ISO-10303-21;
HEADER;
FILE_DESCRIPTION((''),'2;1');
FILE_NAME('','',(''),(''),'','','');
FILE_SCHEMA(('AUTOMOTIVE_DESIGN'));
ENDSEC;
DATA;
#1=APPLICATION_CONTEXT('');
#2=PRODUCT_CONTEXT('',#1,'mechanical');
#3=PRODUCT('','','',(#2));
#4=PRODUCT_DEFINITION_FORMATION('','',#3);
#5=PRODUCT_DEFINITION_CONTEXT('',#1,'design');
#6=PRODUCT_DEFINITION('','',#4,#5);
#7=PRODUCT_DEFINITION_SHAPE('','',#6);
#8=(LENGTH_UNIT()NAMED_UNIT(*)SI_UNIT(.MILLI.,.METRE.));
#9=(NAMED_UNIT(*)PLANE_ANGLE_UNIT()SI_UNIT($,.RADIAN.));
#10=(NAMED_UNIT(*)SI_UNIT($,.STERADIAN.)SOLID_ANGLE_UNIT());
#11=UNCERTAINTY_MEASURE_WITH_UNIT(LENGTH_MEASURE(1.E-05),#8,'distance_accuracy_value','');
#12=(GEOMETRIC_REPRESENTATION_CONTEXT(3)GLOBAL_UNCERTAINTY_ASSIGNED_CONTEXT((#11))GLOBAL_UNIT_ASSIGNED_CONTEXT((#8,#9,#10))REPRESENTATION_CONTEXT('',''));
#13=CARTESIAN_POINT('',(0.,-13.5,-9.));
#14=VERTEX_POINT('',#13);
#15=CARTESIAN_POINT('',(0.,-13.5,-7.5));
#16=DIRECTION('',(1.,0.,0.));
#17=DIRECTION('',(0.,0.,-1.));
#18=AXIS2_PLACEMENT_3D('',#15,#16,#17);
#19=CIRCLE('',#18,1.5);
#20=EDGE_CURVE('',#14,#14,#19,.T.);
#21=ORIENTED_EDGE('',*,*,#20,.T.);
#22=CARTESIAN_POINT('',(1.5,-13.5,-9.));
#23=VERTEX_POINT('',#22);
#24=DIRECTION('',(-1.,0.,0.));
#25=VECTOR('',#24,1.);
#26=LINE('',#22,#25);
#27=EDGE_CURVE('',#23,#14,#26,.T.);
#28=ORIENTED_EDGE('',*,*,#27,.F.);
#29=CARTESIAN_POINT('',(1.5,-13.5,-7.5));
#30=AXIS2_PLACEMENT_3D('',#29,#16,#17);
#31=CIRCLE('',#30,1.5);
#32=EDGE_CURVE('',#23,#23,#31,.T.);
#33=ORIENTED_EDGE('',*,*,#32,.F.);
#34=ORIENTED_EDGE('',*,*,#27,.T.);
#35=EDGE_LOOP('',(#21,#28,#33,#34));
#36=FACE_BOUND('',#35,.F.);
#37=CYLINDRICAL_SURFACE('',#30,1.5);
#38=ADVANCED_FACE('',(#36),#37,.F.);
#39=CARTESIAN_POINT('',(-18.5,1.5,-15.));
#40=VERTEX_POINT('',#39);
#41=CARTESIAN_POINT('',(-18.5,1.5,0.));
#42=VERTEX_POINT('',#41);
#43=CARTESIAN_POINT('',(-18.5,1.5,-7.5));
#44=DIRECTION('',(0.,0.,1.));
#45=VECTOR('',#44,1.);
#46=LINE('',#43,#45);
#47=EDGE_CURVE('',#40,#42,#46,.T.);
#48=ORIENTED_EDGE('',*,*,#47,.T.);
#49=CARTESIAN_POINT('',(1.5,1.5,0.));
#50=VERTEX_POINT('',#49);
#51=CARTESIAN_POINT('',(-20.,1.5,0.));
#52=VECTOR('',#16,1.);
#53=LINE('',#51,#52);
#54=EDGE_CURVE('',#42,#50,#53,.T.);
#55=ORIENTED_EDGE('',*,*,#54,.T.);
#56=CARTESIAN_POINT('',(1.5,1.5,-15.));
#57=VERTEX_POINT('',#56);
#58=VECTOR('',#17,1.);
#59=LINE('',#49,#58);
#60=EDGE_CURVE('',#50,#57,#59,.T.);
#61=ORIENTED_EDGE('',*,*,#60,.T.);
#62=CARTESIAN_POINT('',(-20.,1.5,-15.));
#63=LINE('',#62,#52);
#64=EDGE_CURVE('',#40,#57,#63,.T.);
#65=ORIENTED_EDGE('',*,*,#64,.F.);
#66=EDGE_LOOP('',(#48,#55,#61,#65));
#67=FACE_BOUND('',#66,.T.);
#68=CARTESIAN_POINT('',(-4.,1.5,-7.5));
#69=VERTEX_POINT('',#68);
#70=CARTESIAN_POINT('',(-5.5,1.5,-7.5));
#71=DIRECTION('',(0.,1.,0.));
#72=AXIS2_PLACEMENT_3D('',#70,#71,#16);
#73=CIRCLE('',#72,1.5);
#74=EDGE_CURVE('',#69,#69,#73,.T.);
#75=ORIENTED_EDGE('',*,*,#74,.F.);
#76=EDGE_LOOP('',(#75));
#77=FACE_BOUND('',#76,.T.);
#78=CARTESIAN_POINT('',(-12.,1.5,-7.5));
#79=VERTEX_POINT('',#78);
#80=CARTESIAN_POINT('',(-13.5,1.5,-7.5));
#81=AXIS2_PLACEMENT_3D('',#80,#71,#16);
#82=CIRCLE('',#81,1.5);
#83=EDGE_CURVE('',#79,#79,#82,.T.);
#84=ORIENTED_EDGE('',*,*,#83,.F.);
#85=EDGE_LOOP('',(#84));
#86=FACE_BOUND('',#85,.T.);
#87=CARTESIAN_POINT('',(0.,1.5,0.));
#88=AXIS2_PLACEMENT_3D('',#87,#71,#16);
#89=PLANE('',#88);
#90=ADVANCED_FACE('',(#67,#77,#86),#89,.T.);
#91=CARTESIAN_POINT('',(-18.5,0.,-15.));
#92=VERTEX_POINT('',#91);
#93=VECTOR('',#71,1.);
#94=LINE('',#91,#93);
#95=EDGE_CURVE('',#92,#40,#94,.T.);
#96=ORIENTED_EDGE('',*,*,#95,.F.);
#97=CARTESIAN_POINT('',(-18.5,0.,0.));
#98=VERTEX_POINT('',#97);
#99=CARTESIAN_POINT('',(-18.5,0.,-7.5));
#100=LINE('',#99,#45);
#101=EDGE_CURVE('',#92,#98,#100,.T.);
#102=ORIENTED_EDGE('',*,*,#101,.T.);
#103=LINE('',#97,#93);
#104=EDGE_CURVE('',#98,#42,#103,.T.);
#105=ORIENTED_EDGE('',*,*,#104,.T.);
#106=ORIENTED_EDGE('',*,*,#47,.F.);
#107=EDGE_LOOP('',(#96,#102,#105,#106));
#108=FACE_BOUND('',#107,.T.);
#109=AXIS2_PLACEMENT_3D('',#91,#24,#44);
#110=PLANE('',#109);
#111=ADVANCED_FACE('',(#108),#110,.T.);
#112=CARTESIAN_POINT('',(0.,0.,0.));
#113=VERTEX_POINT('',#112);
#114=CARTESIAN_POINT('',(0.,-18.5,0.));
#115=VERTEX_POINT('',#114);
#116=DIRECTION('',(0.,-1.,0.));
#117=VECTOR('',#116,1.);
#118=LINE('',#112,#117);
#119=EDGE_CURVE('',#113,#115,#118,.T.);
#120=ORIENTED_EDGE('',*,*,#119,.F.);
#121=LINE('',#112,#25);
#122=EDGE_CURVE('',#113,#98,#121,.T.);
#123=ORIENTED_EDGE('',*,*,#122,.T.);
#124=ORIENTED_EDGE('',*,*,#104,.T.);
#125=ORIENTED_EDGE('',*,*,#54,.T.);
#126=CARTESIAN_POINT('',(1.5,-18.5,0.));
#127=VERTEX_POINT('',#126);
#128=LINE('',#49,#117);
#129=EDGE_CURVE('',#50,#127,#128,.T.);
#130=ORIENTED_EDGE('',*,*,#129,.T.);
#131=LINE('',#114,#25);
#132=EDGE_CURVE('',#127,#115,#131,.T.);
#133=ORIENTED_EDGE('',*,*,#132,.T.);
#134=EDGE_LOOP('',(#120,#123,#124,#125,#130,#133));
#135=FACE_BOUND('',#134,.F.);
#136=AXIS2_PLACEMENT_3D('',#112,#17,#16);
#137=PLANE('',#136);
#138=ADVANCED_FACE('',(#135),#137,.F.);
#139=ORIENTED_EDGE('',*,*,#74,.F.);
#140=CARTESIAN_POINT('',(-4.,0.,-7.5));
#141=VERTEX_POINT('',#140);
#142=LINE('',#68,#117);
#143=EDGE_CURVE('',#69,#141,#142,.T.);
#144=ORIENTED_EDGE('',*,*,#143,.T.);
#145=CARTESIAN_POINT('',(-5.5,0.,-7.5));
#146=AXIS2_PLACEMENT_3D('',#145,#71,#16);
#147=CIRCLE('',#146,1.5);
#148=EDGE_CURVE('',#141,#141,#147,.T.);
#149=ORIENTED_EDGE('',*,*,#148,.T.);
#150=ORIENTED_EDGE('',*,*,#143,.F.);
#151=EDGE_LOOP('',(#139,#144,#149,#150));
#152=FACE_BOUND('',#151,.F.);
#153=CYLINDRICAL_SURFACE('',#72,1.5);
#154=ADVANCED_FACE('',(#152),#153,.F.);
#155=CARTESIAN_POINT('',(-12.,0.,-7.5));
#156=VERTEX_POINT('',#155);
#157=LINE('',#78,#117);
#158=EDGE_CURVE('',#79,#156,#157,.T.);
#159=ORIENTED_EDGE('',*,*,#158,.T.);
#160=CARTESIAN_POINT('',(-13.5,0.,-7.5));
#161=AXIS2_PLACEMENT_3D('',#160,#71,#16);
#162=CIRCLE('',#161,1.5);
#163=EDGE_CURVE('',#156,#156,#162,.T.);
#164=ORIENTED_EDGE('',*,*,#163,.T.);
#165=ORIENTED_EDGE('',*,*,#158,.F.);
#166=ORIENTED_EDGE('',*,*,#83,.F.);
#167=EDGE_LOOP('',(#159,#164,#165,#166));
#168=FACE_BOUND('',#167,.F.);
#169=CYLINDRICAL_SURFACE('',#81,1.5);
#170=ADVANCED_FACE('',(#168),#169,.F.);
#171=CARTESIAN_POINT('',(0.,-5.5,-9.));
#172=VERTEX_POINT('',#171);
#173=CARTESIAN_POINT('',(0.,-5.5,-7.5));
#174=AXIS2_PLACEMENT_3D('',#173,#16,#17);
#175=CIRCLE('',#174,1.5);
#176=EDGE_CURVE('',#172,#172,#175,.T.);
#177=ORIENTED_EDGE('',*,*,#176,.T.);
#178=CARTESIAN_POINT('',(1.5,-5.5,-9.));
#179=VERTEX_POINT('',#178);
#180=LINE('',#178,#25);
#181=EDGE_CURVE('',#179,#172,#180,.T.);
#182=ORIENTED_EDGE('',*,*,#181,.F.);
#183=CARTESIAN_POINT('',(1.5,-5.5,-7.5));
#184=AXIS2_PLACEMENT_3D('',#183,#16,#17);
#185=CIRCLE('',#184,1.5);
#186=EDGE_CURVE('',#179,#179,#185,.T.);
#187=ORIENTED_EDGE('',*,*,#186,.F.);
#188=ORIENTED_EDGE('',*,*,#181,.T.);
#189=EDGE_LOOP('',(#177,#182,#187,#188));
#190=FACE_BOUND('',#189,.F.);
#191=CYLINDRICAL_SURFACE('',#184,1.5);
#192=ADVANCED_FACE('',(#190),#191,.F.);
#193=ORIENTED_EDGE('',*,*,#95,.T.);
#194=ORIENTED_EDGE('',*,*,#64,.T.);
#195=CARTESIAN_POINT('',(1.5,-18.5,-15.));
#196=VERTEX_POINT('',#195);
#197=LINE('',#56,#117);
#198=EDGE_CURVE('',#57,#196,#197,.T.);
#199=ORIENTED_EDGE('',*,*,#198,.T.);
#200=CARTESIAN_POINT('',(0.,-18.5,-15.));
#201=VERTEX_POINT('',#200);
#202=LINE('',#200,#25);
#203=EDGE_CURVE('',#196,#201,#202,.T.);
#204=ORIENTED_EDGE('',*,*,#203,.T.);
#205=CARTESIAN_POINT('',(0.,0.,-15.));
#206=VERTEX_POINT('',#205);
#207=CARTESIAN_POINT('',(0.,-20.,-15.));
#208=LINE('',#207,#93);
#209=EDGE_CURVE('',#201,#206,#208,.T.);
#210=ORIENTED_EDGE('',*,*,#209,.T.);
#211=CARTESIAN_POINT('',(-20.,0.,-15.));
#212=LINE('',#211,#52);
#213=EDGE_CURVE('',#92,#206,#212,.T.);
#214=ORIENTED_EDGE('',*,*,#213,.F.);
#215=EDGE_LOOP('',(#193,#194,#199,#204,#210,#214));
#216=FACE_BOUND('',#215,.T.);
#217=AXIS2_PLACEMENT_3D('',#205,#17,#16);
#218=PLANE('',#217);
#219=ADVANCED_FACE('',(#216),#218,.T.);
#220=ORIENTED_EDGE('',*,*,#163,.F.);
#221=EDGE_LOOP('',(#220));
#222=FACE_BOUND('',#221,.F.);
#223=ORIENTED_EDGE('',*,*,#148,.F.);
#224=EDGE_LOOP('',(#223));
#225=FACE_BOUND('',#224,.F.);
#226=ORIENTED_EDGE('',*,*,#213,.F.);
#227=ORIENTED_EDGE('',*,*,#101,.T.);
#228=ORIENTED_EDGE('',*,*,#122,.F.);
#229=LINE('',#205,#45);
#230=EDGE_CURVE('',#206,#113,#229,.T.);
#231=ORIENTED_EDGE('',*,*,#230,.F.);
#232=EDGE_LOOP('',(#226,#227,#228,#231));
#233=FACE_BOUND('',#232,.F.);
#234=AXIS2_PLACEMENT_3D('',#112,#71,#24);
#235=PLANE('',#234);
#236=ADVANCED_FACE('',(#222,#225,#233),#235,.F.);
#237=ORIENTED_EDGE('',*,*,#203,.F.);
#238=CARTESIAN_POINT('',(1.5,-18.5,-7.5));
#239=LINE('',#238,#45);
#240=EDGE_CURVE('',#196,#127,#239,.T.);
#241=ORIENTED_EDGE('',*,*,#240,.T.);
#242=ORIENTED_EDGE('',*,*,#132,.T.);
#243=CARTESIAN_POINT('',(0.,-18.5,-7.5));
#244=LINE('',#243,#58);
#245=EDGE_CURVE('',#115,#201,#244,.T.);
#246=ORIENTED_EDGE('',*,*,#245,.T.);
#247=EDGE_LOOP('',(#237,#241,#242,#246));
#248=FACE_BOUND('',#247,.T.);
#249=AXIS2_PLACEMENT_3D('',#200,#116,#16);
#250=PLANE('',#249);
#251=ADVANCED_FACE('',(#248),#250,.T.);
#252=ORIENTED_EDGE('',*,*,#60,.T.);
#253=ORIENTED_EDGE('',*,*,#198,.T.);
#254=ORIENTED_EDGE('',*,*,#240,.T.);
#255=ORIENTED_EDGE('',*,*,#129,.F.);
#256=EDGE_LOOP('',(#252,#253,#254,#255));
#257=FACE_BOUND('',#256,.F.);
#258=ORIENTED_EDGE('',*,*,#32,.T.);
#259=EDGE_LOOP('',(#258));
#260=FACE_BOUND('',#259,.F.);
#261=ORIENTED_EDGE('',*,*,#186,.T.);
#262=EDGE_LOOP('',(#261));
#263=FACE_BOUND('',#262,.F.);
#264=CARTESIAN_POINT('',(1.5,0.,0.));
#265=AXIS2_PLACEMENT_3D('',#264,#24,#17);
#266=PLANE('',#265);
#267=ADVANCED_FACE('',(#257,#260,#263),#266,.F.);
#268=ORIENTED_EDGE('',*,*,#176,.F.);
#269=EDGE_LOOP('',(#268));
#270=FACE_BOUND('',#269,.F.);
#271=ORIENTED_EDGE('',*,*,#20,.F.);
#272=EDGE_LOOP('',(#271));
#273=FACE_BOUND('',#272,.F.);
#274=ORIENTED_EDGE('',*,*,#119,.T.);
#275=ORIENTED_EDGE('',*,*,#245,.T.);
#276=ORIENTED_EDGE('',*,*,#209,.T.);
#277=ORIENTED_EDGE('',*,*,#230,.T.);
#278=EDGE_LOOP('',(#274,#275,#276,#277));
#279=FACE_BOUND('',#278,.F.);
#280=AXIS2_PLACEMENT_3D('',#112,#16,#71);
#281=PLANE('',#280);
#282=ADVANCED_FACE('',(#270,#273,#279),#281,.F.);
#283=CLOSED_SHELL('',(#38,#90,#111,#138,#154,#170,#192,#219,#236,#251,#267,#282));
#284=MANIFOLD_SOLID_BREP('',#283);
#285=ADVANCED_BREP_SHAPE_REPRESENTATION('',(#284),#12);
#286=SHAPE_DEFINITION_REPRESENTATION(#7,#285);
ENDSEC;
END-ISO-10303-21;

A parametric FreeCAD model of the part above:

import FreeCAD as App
import Part
import Sketcher
Q = App.Units.Quantity

doc = App.newDocument("Part")
params = doc.addObject("Spreadsheet::Sheet", "Params")
for row, (alias, value) in enumerate([
    ("sketch1_width", "20 mm"),
    ("sketch1_height", "15 mm"),
    ("pad1_length", "1.5 mm"),
    ("sketch2_width", "20 mm"),
    ("sketch2_height", "15 mm"),
    ("pad2_length", "1.5 mm"),
    ("sketch3_height", "15 mm"),
    ("sketch3_width", "1.5 mm"),
    ("pad3_length", "1.5 mm"),
    ("pocket1_length", "1.5 mm"),
    ("pocket2_length", "1.5 mm"),
    ("sketch6_diameter", "3 mm"),
    ("pocket3_length", "1.5 mm"),
    ("sketch7_diameter", "3 mm"),
    ("pocket4_length", "1.5 mm"),
], start=1):
    params.set(f"A{row}", alias)
    params.set(f"B{row}", "=" + value)
    params.setAlias(f"B{row}", alias)

body = doc.addObject("PartDesign::Body", "Body")
body.AllowCompound = True

sketch1 = body.newObject("Sketcher::SketchObject", "Sketch")
sketch1.AttachmentSupport = (doc.getObject("XZ_Plane"), [""])
sketch1.MapMode = "FlatFace"
sketch1.addGeometry([
    Part.LineSegment(App.Vector(-20, 0, 0), App.Vector(0, 0, 0)),
    Part.LineSegment(App.Vector(0, 0, 0), App.Vector(0, -15, 0)),
    Part.LineSegment(App.Vector(0, -15, 0), App.Vector(-20, -15, 0)),
    Part.LineSegment(App.Vector(-20, -15, 0), App.Vector(-20, 0, 0)),
], False)
sketch1.addConstraint([
    Sketcher.Constraint("Coincident", 0, 2, 1, 1),
    Sketcher.Constraint("Coincident", 1, 2, 2, 1),
    Sketcher.Constraint("Coincident", 2, 2, 3, 1),
    Sketcher.Constraint("Coincident", 3, 2, 0, 1),
    Sketcher.Constraint("Horizontal", 0),
    Sketcher.Constraint("Vertical", 1),
    Sketcher.Constraint("Horizontal", 2),
    Sketcher.Constraint("Vertical", 3),
    Sketcher.Constraint("Coincident", 0, 2, -1, 1),
    Sketcher.Constraint("DistanceX", 0, 1, 0, 2, Q("20 mm")),
    Sketcher.Constraint("DistanceY", 1, 2, 1, 1, Q("15 mm")),
])
sketch1.setExpression("Constraints[9]", "Params.sketch1_width")
sketch1.setExpression("Constraints[10]", "Params.sketch1_height")
pad1 = body.newObject("PartDesign::Pad", "Pad")
pad1.Profile = sketch1
pad1.setExpression("Length", "Params.pad1_length")
pad1.Reversed = True

sketch2 = body.newObject("Sketcher::SketchObject", "Sketch001")
sketch2.AttachmentSupport = (doc.getObject("YZ_Plane"), [""])
sketch2.MapMode = "FlatFace"
sketch2.addGeometry([
    Part.LineSegment(App.Vector(0, -15, 0), App.Vector(0, 0, 0)),
    Part.LineSegment(App.Vector(0, 0, 0), App.Vector(-20, 0, 0)),
    Part.LineSegment(App.Vector(-20, 0, 0), App.Vector(-20, -15, 0)),
    Part.LineSegment(App.Vector(-20, -15, 0), App.Vector(0, -15, 0)),
], False)
sketch2.addConstraint([
    Sketcher.Constraint("Coincident", 0, 2, 1, 1),
    Sketcher.Constraint("Coincident", 1, 2, 2, 1),
    Sketcher.Constraint("Coincident", 2, 2, 3, 1),
    Sketcher.Constraint("Coincident", 3, 2, 0, 1),
    Sketcher.Constraint("Vertical", 0),
    Sketcher.Constraint("Horizontal", 1),
    Sketcher.Constraint("Vertical", 2),
    Sketcher.Constraint("Horizontal", 3),
    Sketcher.Constraint("Coincident", 0, 2, -1, 1),
    Sketcher.Constraint("DistanceX", 1, 2, 1, 1, Q("20 mm")),
    Sketcher.Constraint("DistanceY", 0, 1, 0, 2, Q("15 mm")),
])
sketch2.setExpression("Constraints[9]", "Params.sketch2_width")
sketch2.setExpression("Constraints[10]", "Params.sketch2_height")
pad2 = body.newObject("PartDesign::Pad", "Pad001")
pad2.Profile = sketch2
pad2.setExpression("Length", "Params.pad2_length")

sketch3 = body.newObject("Sketcher::SketchObject", "Sketch002")
sketch3.AttachmentSupport = (doc.getObject("XZ_Plane"), [""])
sketch3.MapMode = "FlatFace"
sketch3.addGeometry([
    Part.LineSegment(App.Vector(1.5, -15, 0), App.Vector(0, -15, 0)),
    Part.LineSegment(App.Vector(0, -15, 0), App.Vector(0, 0, 0)),
    Part.LineSegment(App.Vector(0, 0, 0), App.Vector(1.5, 0, 0)),
    Part.LineSegment(App.Vector(1.5, 0, 0), App.Vector(1.5, -15, 0)),
], False)
sketch3.addConstraint([
    Sketcher.Constraint("Coincident", 0, 2, 1, 1),
    Sketcher.Constraint("Coincident", 1, 2, 2, 1),
    Sketcher.Constraint("Coincident", 2, 2, 3, 1),
    Sketcher.Constraint("Coincident", 3, 2, 0, 1),
    Sketcher.Constraint("Horizontal", 0),
    Sketcher.Constraint("Vertical", 1),
    Sketcher.Constraint("Horizontal", 2),
    Sketcher.Constraint("Vertical", 3),
    Sketcher.Constraint("Coincident", 1, 2, -1, 1),
    Sketcher.Constraint("DistanceY", 1, 1, 1, 2, Q("15 mm")),
    Sketcher.Constraint("DistanceX", 0, 2, 0, 1, Q("1.5 mm")),
])
sketch3.setExpression("Constraints[9]", "Params.sketch3_height")
sketch3.setExpression("Constraints[10]", "Params.sketch3_width")
pad3 = body.newObject("PartDesign::Pad", "Pad002")
pad3.Profile = sketch3
pad3.setExpression("Length", "Params.pad3_length")
pad3.Reversed = True

sketch4 = body.newObject("Sketcher::SketchObject", "Sketch003")
sketch4.AttachmentSupport = (doc.getObject("YZ_Plane"), [""])
sketch4.MapMode = "FlatFace"
sketch4.AttachmentOffset = App.Placement(App.Vector(0, 0, -20), App.Rotation())
sketch4.addGeometry([
    Part.LineSegment(App.Vector(-3, 1, 0), App.Vector(4, 1, 0)),
    Part.LineSegment(App.Vector(4, 1, 0), App.Vector(4, -17, 0)),
    Part.LineSegment(App.Vector(4, -17, 0), App.Vector(-3, -17, 0)),
    Part.LineSegment(App.Vector(-3, -17, 0), App.Vector(-3, 1, 0)),
], False)
sketch4.addConstraint([
    Sketcher.Constraint("Coincident", 0, 2, 1, 1),
    Sketcher.Constraint("Coincident", 1, 2, 2, 1),
    Sketcher.Constraint("Coincident", 2, 2, 3, 1),
    Sketcher.Constraint("Coincident", 3, 2, 0, 1),
    Sketcher.Constraint("Horizontal", 0),
    Sketcher.Constraint("Vertical", 1),
    Sketcher.Constraint("Horizontal", 2),
    Sketcher.Constraint("Vertical", 3),
    Sketcher.Constraint("DistanceX", 0, 1, 0, 2, Q("7.6223 mm")),
    Sketcher.Constraint("DistanceY", 1, 2, 1, 1, Q("17.6763 mm")),
    Sketcher.Constraint("DistanceX", -1, 1, 0, 2, Q("4.174 mm")),
    Sketcher.Constraint("DistanceY", 1, 2, -1, 1, Q("16.769 mm")),
])
pocket1 = body.newObject("PartDesign::Pocket", "Pocket")
pocket1.Profile = sketch4
pocket1.setExpression("Length", "Params.pocket1_length")
pocket1.Reversed = True

sketch5 = body.newObject("Sketcher::SketchObject", "Sketch004")
sketch5.AttachmentSupport = (doc.getObject("XZ_Plane"), [""])
sketch5.MapMode = "FlatFace"
sketch5.AttachmentOffset = App.Placement(App.Vector(0, 0, 20), App.Rotation())
sketch5.addGeometry([
    Part.LineSegment(App.Vector(6, 2, 0), App.Vector(-2, 2, 0)),
    Part.LineSegment(App.Vector(-2, 2, 0), App.Vector(-2, -17, 0)),
    Part.LineSegment(App.Vector(-2, -17, 0), App.Vector(6, -17, 0)),
    Part.LineSegment(App.Vector(6, -17, 0), App.Vector(6, 2, 0)),
], False)
sketch5.addConstraint([
    Sketcher.Constraint("Coincident", 0, 2, 1, 1),
    Sketcher.Constraint("Coincident", 1, 2, 2, 1),
    Sketcher.Constraint("Coincident", 2, 2, 3, 1),
    Sketcher.Constraint("Coincident", 3, 2, 0, 1),
    Sketcher.Constraint("Horizontal", 0),
    Sketcher.Constraint("Vertical", 1),
    Sketcher.Constraint("Horizontal", 2),
    Sketcher.Constraint("Vertical", 3),
    Sketcher.Constraint("DistanceX", 0, 2, 0, 1, Q("8.457 mm")),
    Sketcher.Constraint("DistanceY", 1, 2, 1, 1, Q("18.2208 mm")),
    Sketcher.Constraint("DistanceX", 0, 2, -1, 1, Q("2.0326 mm")),
    Sketcher.Constraint("DistanceY", -1, 1, 0, 2, Q("1.6333 mm")),
])
pocket2 = body.newObject("PartDesign::Pocket", "Pocket001")
pocket2.Profile = sketch5
pocket2.setExpression("Length", "Params.pocket2_length")

sketch6 = body.newObject("Sketcher::SketchObject", "Sketch005")
sketch6.AttachmentSupport = (doc.getObject("YZ_Plane"), [""])
sketch6.MapMode = "FlatFace"
sketch6.AttachmentOffset = App.Placement(App.Vector(0, 0, 1.5), App.Rotation())
sketch6.addGeometry([
    Part.Circle(App.Vector(-5.5, -7.5, 0), App.Vector(0, 0, 1), 1.5),
    Part.Circle(App.Vector(-13.5, -7.5, 0), App.Vector(0, 0, 1), 1.5),
], False)
sketch6.addConstraint([
    Sketcher.Constraint("Equal", 0, 1),
    Sketcher.Constraint("Horizontal", 0, 3, 1, 3),
    Sketcher.Constraint("Diameter", 0, Q("3 mm")),
    Sketcher.Constraint("DistanceX", 1, 3, 0, 3, Q("8 mm")),
    Sketcher.Constraint("DistanceX", 0, 3, -1, 1, Q("5.5 mm")),
    Sketcher.Constraint("DistanceY", 0, 3, -1, 1, Q("7.5 mm")),
])
sketch6.setExpression("Constraints[2]", "Params.sketch6_diameter")
pocket3 = body.newObject("PartDesign::Pocket", "Pocket002")
pocket3.Profile = sketch6
pocket3.setExpression("Length", "Params.pocket3_length")

sketch7 = body.newObject("Sketcher::SketchObject", "Sketch006")
sketch7.AttachmentSupport = (doc.getObject("XZ_Plane"), [""])
sketch7.MapMode = "FlatFace"
sketch7.AttachmentOffset = App.Placement(App.Vector(0, 0, -1.5), App.Rotation())
sketch7.addGeometry([
    Part.Circle(App.Vector(-13.5, -7.5, 0), App.Vector(0, 0, 1), 1.5),
    Part.Circle(App.Vector(-5.5, -7.5, 0), App.Vector(0, 0, 1), 1.5),
], False)
sketch7.addConstraint([
    Sketcher.Constraint("Equal", 0, 1),
    Sketcher.Constraint("Horizontal", 0, 3, 1, 3),
    Sketcher.Constraint("Diameter", 0, Q("3 mm")),
    Sketcher.Constraint("DistanceX", 0, 3, 1, 3, Q("8 mm")),
    Sketcher.Constraint("DistanceX", 0, 3, -1, 1, Q("13.5 mm")),
    Sketcher.Constraint("DistanceY", 0, 3, -1, 1, Q("7.5 mm")),
])
sketch7.setExpression("Constraints[2]", "Params.sketch7_diameter")
pocket4 = body.newObject("PartDesign::Pocket", "Pocket003")
pocket4.Profile = sketch7
pocket4.setExpression("Length", "Params.pocket4_length")
pocket4.Reversed = True

doc.recompute()
